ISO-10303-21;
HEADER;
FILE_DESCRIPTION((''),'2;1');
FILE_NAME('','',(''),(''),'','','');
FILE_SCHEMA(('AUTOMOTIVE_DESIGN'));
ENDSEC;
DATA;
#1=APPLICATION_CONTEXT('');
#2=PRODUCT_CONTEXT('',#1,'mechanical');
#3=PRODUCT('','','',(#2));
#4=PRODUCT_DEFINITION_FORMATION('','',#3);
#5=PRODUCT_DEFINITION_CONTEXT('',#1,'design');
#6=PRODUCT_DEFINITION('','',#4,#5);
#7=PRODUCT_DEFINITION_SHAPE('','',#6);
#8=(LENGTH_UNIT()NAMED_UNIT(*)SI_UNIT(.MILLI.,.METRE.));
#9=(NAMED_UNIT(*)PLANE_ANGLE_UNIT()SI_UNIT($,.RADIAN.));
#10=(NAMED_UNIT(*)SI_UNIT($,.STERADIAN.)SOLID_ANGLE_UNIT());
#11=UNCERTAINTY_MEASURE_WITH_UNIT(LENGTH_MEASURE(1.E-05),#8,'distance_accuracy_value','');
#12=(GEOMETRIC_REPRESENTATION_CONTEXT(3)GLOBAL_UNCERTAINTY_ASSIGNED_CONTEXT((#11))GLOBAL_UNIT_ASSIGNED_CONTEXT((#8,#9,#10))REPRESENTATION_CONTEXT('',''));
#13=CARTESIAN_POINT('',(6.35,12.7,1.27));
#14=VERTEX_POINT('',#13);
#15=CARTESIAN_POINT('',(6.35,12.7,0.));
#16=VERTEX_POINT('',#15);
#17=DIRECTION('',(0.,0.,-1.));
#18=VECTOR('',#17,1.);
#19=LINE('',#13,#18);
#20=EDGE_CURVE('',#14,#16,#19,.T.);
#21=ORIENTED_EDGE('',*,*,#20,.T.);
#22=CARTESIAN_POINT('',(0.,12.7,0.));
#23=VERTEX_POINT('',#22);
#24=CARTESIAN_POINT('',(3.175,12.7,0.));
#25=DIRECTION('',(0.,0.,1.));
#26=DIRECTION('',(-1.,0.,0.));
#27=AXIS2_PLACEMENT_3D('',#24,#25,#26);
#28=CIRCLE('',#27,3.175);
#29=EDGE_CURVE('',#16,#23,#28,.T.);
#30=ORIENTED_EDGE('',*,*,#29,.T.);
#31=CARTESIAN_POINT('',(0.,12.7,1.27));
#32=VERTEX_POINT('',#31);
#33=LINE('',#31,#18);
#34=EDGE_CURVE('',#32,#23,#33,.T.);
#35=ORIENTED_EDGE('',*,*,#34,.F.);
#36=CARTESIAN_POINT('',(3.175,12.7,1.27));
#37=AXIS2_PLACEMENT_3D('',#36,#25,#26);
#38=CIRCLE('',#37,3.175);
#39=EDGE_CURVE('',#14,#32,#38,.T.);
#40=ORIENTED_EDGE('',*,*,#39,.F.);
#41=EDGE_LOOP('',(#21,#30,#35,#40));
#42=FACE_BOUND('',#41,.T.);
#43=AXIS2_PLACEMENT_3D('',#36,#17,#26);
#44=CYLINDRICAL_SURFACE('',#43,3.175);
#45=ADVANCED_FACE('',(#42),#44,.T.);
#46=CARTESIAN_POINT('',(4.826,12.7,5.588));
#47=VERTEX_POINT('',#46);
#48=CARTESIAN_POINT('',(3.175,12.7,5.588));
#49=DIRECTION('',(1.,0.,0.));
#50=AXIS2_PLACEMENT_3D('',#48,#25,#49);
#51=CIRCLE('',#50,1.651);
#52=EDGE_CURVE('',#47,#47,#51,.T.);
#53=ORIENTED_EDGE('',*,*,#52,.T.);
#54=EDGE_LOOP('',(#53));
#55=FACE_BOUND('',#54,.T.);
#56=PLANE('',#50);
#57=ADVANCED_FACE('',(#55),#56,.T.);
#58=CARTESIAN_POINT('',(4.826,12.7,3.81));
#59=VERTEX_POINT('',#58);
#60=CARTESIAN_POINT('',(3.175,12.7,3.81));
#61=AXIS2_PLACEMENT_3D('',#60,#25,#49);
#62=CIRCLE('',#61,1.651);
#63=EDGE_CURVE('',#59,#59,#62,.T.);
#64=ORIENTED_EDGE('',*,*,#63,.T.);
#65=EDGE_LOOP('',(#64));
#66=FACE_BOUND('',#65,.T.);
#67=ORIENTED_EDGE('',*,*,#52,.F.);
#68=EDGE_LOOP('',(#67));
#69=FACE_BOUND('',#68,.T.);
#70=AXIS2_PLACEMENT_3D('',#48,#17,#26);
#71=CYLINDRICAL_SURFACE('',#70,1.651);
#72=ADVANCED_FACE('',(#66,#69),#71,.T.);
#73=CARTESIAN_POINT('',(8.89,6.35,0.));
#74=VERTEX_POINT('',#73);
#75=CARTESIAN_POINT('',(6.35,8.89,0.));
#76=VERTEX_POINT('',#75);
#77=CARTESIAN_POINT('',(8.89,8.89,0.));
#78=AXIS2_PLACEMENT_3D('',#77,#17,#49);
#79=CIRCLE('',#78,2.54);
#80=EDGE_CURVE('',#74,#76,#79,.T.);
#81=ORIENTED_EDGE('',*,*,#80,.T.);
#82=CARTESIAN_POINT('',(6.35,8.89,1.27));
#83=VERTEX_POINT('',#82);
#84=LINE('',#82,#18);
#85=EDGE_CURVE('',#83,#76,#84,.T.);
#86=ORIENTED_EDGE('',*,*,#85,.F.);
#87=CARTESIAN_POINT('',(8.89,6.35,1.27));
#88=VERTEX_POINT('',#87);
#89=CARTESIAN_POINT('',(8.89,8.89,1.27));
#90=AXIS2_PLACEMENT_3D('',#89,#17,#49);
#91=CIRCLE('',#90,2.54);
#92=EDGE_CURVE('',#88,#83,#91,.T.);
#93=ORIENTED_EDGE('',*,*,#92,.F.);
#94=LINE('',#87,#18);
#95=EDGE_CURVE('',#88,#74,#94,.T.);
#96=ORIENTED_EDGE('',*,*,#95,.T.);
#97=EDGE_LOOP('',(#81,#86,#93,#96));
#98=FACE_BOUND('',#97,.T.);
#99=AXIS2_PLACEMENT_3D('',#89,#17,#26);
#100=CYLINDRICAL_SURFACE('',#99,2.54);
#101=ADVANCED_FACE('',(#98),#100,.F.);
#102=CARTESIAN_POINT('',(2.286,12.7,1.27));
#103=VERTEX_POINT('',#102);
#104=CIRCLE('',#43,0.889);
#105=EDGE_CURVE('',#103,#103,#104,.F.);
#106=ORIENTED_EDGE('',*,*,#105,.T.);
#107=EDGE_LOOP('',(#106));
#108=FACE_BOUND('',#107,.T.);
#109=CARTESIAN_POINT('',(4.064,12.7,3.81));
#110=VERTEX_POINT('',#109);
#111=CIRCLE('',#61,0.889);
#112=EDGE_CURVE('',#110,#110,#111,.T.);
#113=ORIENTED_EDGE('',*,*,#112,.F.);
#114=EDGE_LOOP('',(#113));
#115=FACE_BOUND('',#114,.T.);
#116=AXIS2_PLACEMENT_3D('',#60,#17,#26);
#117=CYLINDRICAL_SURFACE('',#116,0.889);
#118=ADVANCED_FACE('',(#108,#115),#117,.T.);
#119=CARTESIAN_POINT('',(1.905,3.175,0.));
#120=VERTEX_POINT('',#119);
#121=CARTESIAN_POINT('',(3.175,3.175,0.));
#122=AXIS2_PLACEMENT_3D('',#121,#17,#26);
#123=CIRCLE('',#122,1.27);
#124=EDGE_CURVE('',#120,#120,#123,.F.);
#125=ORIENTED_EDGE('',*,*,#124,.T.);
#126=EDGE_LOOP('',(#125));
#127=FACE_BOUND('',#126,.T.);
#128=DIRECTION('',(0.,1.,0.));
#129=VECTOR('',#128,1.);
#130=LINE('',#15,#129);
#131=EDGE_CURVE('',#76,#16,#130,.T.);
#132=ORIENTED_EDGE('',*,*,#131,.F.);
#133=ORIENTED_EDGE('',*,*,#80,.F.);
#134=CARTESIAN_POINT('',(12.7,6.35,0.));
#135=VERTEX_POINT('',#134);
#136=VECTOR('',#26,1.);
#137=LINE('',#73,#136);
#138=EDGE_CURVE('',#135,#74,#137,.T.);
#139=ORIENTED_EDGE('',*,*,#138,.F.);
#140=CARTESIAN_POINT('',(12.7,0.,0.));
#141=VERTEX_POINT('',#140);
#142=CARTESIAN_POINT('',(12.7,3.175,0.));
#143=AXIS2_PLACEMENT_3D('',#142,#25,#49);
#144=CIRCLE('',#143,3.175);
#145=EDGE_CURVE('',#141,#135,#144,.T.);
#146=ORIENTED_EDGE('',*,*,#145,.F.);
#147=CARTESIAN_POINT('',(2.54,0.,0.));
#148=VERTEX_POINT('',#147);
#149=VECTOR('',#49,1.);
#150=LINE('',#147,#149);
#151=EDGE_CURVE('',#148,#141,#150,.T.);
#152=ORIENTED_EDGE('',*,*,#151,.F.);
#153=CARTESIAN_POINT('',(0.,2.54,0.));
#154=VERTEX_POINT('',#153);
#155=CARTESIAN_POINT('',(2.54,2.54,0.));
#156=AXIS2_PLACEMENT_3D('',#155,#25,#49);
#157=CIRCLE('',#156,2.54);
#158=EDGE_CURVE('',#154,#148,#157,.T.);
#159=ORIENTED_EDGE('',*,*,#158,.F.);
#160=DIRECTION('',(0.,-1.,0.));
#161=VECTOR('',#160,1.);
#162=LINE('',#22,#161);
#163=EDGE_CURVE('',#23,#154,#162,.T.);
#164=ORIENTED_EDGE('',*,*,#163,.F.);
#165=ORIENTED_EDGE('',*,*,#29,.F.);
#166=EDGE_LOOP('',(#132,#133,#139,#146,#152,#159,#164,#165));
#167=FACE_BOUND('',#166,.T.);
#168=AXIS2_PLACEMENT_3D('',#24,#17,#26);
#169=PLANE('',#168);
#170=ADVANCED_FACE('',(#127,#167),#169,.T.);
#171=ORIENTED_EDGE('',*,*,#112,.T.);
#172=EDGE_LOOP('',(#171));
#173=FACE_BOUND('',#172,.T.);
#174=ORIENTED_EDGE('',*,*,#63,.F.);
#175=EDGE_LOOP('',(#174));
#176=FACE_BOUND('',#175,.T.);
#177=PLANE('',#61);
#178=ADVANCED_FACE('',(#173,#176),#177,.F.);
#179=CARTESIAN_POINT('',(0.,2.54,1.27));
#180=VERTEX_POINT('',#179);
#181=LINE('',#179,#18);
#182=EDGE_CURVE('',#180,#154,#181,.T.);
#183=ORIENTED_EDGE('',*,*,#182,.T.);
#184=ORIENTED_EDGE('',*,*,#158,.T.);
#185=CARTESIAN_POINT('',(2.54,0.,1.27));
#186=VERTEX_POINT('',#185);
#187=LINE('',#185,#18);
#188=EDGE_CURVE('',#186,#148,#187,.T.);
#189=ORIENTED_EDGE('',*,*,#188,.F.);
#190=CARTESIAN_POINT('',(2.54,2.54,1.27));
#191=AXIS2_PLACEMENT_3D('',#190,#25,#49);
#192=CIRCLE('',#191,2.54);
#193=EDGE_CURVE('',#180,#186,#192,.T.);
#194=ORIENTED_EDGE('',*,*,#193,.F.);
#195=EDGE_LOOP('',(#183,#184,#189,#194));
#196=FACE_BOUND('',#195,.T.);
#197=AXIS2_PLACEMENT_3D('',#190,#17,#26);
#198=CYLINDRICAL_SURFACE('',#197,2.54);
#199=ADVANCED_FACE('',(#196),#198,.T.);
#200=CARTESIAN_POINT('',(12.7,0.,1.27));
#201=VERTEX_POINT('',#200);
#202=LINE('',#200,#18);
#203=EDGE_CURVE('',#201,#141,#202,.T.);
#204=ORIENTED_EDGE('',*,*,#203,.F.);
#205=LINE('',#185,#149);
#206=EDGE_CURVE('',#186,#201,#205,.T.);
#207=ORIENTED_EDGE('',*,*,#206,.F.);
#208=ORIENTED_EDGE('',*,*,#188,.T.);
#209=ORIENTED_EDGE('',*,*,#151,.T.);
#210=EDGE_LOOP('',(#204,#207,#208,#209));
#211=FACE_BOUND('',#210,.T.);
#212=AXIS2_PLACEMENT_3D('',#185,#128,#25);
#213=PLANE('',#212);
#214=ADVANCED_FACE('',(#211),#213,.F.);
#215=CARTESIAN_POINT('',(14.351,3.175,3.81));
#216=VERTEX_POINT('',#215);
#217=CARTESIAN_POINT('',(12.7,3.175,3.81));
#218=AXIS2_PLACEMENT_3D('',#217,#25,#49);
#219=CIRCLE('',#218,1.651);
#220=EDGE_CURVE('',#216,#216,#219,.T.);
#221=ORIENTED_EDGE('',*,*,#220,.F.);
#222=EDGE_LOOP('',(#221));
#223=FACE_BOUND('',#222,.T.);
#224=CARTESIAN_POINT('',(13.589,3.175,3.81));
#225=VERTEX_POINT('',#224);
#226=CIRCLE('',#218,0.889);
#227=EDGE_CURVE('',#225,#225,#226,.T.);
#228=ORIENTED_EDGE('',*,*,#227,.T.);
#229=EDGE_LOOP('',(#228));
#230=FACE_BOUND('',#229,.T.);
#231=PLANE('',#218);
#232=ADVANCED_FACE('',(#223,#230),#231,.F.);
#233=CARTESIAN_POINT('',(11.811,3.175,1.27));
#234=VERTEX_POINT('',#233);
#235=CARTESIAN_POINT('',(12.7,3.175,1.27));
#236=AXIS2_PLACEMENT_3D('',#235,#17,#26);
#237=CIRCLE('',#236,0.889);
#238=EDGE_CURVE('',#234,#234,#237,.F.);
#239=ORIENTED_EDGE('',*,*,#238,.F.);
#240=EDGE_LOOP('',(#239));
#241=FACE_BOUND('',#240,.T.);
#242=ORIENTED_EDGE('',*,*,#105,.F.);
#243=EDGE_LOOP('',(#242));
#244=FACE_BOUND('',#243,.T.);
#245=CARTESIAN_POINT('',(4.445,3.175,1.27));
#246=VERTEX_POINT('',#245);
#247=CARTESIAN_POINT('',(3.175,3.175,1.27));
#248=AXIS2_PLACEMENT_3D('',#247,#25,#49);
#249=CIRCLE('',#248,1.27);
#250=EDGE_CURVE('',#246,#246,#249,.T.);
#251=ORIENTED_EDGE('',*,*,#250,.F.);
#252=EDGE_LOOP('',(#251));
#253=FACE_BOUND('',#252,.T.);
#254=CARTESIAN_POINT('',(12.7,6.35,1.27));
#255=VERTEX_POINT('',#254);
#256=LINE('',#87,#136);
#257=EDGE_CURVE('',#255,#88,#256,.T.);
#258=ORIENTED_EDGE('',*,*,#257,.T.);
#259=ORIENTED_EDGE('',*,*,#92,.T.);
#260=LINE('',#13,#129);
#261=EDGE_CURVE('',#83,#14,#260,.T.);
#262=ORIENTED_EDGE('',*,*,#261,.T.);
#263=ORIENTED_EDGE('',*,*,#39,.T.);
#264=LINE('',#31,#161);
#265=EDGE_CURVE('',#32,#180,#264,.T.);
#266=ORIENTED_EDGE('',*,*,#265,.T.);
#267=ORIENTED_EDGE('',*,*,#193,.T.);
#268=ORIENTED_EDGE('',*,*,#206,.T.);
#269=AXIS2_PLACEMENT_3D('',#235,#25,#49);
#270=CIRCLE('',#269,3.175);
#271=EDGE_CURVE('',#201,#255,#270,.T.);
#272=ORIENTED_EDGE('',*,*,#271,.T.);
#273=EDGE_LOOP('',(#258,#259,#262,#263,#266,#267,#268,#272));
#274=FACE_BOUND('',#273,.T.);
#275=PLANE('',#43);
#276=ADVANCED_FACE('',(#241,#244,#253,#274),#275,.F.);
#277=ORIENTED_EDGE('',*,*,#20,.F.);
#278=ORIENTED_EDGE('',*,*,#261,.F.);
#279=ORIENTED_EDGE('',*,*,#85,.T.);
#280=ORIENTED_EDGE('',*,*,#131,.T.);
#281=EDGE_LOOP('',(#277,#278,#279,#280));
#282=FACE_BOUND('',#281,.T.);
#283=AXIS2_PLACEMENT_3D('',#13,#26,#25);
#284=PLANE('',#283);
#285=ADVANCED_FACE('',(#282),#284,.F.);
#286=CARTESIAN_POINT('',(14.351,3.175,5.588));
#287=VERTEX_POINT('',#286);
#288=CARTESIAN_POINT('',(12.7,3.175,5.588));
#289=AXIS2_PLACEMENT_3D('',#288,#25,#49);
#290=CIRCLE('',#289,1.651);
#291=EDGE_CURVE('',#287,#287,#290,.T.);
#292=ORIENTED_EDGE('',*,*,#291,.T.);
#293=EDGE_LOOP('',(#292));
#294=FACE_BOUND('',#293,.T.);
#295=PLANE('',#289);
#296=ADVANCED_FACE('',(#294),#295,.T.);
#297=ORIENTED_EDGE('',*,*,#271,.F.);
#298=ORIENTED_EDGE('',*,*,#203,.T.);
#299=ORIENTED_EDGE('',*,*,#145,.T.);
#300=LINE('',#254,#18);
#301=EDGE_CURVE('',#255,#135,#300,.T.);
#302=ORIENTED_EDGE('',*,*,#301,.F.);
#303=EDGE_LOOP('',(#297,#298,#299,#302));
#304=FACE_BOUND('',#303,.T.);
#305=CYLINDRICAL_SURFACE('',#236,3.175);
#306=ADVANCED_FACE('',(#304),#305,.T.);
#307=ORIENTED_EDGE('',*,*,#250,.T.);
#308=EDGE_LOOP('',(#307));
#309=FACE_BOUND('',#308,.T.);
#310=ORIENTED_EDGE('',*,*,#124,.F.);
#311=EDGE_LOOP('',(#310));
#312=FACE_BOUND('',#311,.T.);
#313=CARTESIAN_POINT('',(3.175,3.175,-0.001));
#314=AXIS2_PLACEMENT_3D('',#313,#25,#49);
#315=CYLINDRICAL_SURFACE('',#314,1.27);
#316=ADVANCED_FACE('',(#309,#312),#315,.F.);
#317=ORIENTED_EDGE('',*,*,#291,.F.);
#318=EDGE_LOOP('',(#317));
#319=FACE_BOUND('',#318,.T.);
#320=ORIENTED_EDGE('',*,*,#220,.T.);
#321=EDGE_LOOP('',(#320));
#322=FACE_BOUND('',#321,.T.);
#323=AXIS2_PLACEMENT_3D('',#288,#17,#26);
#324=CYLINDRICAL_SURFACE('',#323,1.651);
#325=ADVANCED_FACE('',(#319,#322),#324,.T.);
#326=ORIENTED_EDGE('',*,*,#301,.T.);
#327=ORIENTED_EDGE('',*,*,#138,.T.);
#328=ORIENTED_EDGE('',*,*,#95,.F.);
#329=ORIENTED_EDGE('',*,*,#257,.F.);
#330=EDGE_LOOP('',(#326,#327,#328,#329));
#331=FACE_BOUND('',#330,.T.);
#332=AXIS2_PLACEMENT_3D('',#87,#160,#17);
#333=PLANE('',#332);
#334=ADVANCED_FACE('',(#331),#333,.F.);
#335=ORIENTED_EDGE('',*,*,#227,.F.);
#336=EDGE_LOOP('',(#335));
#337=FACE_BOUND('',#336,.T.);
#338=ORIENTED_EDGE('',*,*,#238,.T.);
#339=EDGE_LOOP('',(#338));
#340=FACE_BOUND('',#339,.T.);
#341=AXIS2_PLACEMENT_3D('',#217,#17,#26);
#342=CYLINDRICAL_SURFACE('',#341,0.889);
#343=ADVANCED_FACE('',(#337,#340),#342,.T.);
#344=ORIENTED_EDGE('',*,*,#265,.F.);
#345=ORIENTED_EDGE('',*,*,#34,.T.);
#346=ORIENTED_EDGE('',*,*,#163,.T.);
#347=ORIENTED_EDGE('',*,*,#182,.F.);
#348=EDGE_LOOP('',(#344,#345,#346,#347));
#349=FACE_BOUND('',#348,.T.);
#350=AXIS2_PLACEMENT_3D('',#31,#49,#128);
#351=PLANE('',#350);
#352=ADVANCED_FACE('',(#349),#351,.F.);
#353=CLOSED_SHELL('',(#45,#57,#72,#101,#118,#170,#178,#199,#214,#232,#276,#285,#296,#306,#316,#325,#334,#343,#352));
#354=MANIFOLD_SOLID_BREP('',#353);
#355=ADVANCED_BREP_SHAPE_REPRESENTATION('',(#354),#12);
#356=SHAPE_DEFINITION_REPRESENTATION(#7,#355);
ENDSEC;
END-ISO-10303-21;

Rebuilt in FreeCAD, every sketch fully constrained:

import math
import FreeCAD as App
import Part
import Sketcher
from FreeCAD import Vector
Q = App.Units.Quantity

doc = App.newDocument("Part")
body = doc.addObject("PartDesign::Body", "Body")

sketch1 = body.newObject("Sketcher::SketchObject", "Sketch")
sketch1.AttachmentSupport = (doc.getObject("XY_Plane"), [""])
sketch1.MapMode = "FlatFace"
sketch1.addGeometry([
    Part.LineSegment(Vector(0, 12.7, 0), Vector(0, 2.5, 0)),
    Part.ArcOfCircle(Part.Circle(Vector(2.5, 2.5, 0), Vector(0, 0, 1), 2.5), math.radians(-180), math.radians(-90)),
    Part.LineSegment(Vector(2.5, 0, 0), Vector(12.7, 0, 0)),
    Part.ArcOfCircle(Part.Circle(Vector(12.7, 3.2, 0), Vector(0, 0, 1), 3.2), math.radians(-90), math.radians(90)),
    Part.LineSegment(Vector(12.7, 6.3, 0), Vector(8.9, 6.3, 0)),
    Part.ArcOfCircle(Part.Circle(Vector(8.9, 8.9, 0), Vector(0, 0, 1), 2.5), math.radians(-180), math.radians(-90)),
    Part.LineSegment(Vector(6.3, 8.9, 0), Vector(6.3, 12.7, 0)),
    Part.ArcOfCircle(Part.Circle(Vector(3.2, 12.7, 0), Vector(0, 0, 1), 3.2), math.radians(0), math.radians(180)),
], False)
sketch1.addConstraint([
    Sketcher.Constraint("Tangent", 0, 2, 1, 1),
    Sketcher.Constraint("Tangent", 1, 2, 2, 1),
    Sketcher.Constraint("Tangent", 2, 2, 3, 1),
    Sketcher.Constraint("Tangent", 3, 2, 4, 1),
    Sketcher.Constraint("Tangent", 4, 2, 5, 2),
    Sketcher.Constraint("Tangent", 5, 1, 6, 1),
    Sketcher.Constraint("Tangent", 6, 2, 7, 1),
    Sketcher.Constraint("Tangent", 7, 2, 0, 1),
    Sketcher.Constraint("Vertical", 0),
    Sketcher.Constraint("Horizontal", 2),
    Sketcher.Constraint("Horizontal", 4),
    Sketcher.Constraint("Vertical", 6),
    Sketcher.Constraint("Equal", 1, 5),
    Sketcher.Constraint("Equal", 3, 7),
    Sketcher.Constraint("PointOnObject", 0, 2, -2),
    Sketcher.Constraint("PointOnObject", 1, 2, -1),
    Sketcher.Constraint("Equal", 2, 0),
    Sketcher.Constraint("Radius", 1, Q("0.1 in")),
    Sketcher.Constraint("DistanceX", 2, 1, 2, 2, Q("0.4 in")),
    Sketcher.Constraint("Radius", 3, Q("0.125 in")),
])
pad1 = body.newObject("PartDesign::Pad", "Pad")
pad1.Profile = sketch1
pad1.Length = Q("0.05 in")

sketch2 = body.newObject("Sketcher::SketchObject", "Sketch001")
sketch2.AttachmentSupport = (doc.getObject("XY_Plane"), [""])
sketch2.MapMode = "FlatFace"
sketch2.AttachmentOffset = App.Placement(Vector(0, 0, 0.05 * 25.4), App.Rotation())
sketch2.addGeometry([
    Part.Circle(Vector(3.2, 12.7, 0), Vector(0, 0, 1), 0.9),
    Part.Circle(Vector(12.7, 3.2, 0), Vector(0, 0, 1), 0.9),
], False)
sketch2.addConstraint([
    Sketcher.Constraint("Equal", 0, 1),
    Sketcher.Constraint("Diameter", 0, Q("0.07 in")),
    Sketcher.Constraint("DistanceY", -1, 1, 0, 3, Q("0.5 in")),
    Sketcher.Constraint("DistanceX", -1, 1, 1, 3, Q("0.5 in")),
    Sketcher.Constraint("DistanceX", -1, 1, 0, 3, Q("0.125 in")),
    Sketcher.Constraint("DistanceY", -1, 1, 1, 3, Q("0.125 in")),
])
pad2 = body.newObject("PartDesign::Pad", "Pad001")
pad2.Profile = sketch2
pad2.Length = Q("0.1 in")

sketch3 = body.newObject("Sketcher::SketchObject", "Sketch002")
sketch3.AttachmentSupport = (doc.getObject("XY_Plane"), [""])
sketch3.MapMode = "FlatFace"
sketch3.AttachmentOffset = App.Placement(Vector(0, 0, 0.15 * 25.4), App.Rotation())
sketch3.addGeometry([
    Part.Circle(Vector(12.7, 3.2, 0), Vector(0, 0, 1), 1.7),
    Part.Circle(Vector(3.2, 12.7, 0), Vector(0, 0, 1), 1.7),
], False)
sketch3.addConstraint([
    Sketcher.Constraint("Equal", 0, 1),
    Sketcher.Constraint("Diameter", 0, Q("0.13 in")),
    Sketcher.Constraint("DistanceX", -1, 1, 0, 3, Q("0.5 in")),
    Sketcher.Constraint("DistanceY", -1, 1, 1, 3, Q("0.5 in")),
    Sketcher.Constraint("DistanceY", -1, 1, 0, 3, Q("0.125 in")),
    Sketcher.Constraint("DistanceX", -1, 1, 1, 3, Q("0.125 in")),
])
pad3 = body.newObject("PartDesign::Pad", "Pad002")
pad3.Profile = sketch3
pad3.Length = Q("0.07 in")

sketch4 = body.newObject("Sketcher::SketchObject", "Sketch003")
sketch4.AttachmentSupport = (doc.getObject("XY_Plane"), [""])
sketch4.MapMode = "FlatFace"
sketch4.AttachmentOffset = App.Placement(Vector(0, 0, 0.05 * 25.4), App.Rotation())
sketch4.addGeometry(Part.Circle(Vector(3.2, 3.2, 0), Vector(0, 0, 1), 1.3), False)
sketch4.addConstraint([
    Sketcher.Constraint("Diameter", 0, Q("0.1 in")),
    Sketcher.Constraint("DistanceX", -1, 1, 0, 3, Q("0.125 in")),
    Sketcher.Constraint("DistanceY", -1, 1, 0, 3, Q("0.125 in")),
])
pocket1 = body.newObject("PartDesign::Pocket", "Pocket")
pocket1.Profile = sketch4
pocket1.Type = "UpToFirst"

doc.recompute()
